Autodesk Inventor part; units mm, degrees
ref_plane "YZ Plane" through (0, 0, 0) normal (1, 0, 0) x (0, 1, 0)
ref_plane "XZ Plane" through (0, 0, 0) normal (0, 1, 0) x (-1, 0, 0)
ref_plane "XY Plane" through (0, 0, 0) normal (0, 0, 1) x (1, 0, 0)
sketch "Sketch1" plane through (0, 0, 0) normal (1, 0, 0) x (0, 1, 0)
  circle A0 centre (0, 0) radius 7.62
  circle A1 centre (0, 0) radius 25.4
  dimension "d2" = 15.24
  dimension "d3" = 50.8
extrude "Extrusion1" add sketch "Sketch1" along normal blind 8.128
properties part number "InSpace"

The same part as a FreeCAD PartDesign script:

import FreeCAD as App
import Part
import Sketcher
from FreeCAD import Vector
Q = App.Units.Quantity

doc = App.newDocument("Part")
body = doc.addObject("PartDesign::Body", "Body")

# Sketch on YZ plane
sketch1 = body.newObject("Sketcher::SketchObject", "Sketch")
sketch1.AttachmentSupport = (doc.getObject("YZ_Plane"), [""])
sketch1.MapMode = "FlatFace"
sketch1.addGeometry([
    Part.Circle(Vector(0, 0, 0), Vector(0, 0, 1), 25),
    Part.Circle(Vector(0, 0, 0), Vector(0, 0, 1), 8),
], False)
sketch1.addConstraint([
    Sketcher.Constraint("Coincident", 0, 3, -1, 1),
    Sketcher.Constraint("Coincident", 1, 3, -1, 1),
    Sketcher.Constraint("Diameter", 0, Q("2 in")),
    Sketcher.Constraint("Diameter", 1, Q("0.6 in")),
])
pad1 = body.newObject("PartDesign::Pad", "Pad")
pad1.Profile = sketch1
pad1.Length = Q("0.32 in")

doc.recompute()
